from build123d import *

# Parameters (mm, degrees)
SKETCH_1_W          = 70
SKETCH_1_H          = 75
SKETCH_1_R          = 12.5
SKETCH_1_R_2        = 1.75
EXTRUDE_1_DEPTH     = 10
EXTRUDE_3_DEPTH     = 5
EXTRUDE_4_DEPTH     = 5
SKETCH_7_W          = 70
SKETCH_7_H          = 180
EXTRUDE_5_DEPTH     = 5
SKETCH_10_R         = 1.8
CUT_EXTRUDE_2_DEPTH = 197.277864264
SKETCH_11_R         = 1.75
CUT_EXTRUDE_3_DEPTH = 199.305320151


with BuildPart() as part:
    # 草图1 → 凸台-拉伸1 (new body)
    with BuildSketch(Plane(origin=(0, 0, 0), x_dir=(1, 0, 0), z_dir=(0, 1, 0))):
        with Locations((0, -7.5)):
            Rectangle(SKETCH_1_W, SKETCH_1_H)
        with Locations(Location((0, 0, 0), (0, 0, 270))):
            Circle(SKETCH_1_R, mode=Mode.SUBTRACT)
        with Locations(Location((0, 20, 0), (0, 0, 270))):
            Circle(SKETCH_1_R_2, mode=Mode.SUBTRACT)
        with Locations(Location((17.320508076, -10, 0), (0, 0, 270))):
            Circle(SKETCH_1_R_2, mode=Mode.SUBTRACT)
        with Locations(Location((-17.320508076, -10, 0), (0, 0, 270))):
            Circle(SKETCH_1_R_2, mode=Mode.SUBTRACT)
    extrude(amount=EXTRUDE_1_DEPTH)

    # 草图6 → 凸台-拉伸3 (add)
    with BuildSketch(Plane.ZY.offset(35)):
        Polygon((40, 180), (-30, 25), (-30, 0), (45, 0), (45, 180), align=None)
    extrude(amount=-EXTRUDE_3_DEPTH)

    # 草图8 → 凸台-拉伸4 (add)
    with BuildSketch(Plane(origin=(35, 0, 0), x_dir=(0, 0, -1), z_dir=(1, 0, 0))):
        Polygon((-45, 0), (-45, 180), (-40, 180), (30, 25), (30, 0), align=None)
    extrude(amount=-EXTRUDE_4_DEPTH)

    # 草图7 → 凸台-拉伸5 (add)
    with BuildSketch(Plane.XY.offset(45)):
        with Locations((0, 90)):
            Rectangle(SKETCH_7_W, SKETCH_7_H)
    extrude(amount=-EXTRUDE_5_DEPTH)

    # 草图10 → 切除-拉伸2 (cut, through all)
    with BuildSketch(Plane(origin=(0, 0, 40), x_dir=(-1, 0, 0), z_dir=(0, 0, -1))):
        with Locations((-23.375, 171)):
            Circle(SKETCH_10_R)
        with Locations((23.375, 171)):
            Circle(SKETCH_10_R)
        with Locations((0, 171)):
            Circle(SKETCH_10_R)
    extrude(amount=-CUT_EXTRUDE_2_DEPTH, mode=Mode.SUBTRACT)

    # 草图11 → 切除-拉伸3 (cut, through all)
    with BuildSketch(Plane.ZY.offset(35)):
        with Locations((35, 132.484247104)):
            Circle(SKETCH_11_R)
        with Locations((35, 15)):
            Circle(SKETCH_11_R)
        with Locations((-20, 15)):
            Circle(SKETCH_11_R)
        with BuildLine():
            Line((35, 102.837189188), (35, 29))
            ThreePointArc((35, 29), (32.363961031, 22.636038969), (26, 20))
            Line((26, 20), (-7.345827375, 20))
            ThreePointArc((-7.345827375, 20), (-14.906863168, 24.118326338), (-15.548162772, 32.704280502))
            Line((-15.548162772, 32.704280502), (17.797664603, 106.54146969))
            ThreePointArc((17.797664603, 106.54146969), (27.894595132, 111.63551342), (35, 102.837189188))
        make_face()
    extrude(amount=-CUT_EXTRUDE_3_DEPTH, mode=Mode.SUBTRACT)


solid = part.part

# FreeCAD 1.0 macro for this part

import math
import FreeCAD as App
import Part
import Sketcher

V = App.Vector


def add_polygon(sketch, points):
    """Adds a closed chain of lines whose ends are joined by coincident constraints."""
    first, n = sketch.GeometryCount, len(points)
    for a, b in zip(points, points[1:] + points[:1]):
        sketch.addGeometry(Part.LineSegment(App.Vector(*a, 0), App.Vector(*b, 0)), False)
    for i in range(n):
        sketch.addConstraint(Sketcher.Constraint("Coincident", first + i, 2, first + (i + 1) % n, 1))

doc = App.newDocument("Part")
params = doc.addObject("Spreadsheet::Sheet", "Params")
for row, (alias, value) in enumerate([
    ("sketch1_diameter", "25 mm"),
    ("sketch1_diameter2", "3.5 mm"),
    ("sketch1_width", "70 mm"),
    ("sketch1_height", "75 mm"),
    ("pad1_length", "10 mm"),
    ("sketch2_width", "25 mm"),
    ("sketch2_width2", "180 mm"),
    ("sketch2_height", "75 mm"),
    ("sketch2_height2", "5 mm"),
    ("pad2_length", "5 mm"),
    ("sketch3_width", "180 mm"),
    ("sketch3_width2", "25 mm"),
    ("sketch3_height", "75 mm"),
    ("sketch3_height2", "5 mm"),
    ("pad3_length", "5 mm"),
    ("sketch4_width", "70 mm"),
    ("sketch4_height", "180 mm"),
    ("pad4_length", "5 mm"),
    ("sketch5_diameter", "3.6 mm"),
    ("sketch6_radius", "9 mm"),
    ("sketch6_diameter", "3.5 mm"),
], start=1):
    params.set(f"A{row}", alias)
    params.set(f"B{row}", "=" + value)
    params.setAlias(f"B{row}", alias)

body = doc.addObject("PartDesign::Body", "Body")

sketch1 = body.newObject("Sketcher::SketchObject", "Sketch")
sketch1.AttachmentSupport = (doc.getObject("XZ_Plane"), [""])
sketch1.MapMode = "FlatFace"
add_polygon(sketch1, [(-35, -30), (-35, 45), (35, 45), (35, -30)])
sketch1.addGeometry(Part.Circle(V(-17.3, 10, 0), V(0, 0, 1), 1.8), False)
sketch1.addGeometry(Part.Circle(V(17.3, 10, 0), V(0, 0, 1), 1.8), False)
sketch1.addGeometry(Part.Circle(V(0, 0, 0), V(0, 0, 1), 12.5), False)
sketch1.addGeometry(Part.Circle(V(0, -20, 0), V(0, 0, 1), 1.8), False)
sketch1.addConstraint([
    Sketcher.Constraint("Vertical", 0),
    Sketcher.Constraint("Horizontal", 1),
    Sketcher.Constraint("Vertical", 2),
    Sketcher.Constraint("Horizontal", 3),
    Sketcher.Constraint("Coincident", 6, 3, -1, 1),
    Sketcher.Constraint("Equal", 4, 5),
    Sketcher.Constraint("Equal", 5, 7),
    Sketcher.Constraint("Symmetric", 4, 3, 5, 3, -2),
    Sketcher.Constraint("PointOnObject", 7, 3, -2),
    Sketcher.Constraint("Diameter", 6, 25.0),
    Sketcher.Constraint("Diameter", 4, 3.5),
    Sketcher.Constraint("DistanceX", 1, 1, 1, 2, 70.0),
    Sketcher.Constraint("DistanceY", 0, 1, 0, 2, 75.0),
    Sketcher.Constraint("DistanceY", -1, 1, 4, 3, 10.0),
    Sketcher.Constraint("DistanceY", 7, 3, -1, 1, 20.0),
    Sketcher.Constraint("DistanceX", 0, 2, -1, 1, 35.0),
    Sketcher.Constraint("DistanceY", -1, 1, 0, 2, 45.0),
    Sketcher.Constraint("DistanceX", 4, 3, -1, 1, 17.320508),
])
sketch1.setExpression("Constraints[13]", "Params.sketch1_diameter")
sketch1.setExpression("Constraints[14]", "Params.sketch1_diameter2")
sketch1.setExpression("Constraints[15]", "Params.sketch1_width")
sketch1.setExpression("Constraints[16]", "Params.sketch1_height")
pad1 = body.newObject("PartDesign::Pad", "Pad")
pad1.Profile = sketch1
pad1.setExpression("Length", "Params.pad1_length")
pad1.Reversed = True

sketch2 = body.newObject("Sketcher::SketchObject", "Sketch001")
sketch2.AttachmentSupport = (doc.getObject("YZ_Plane"), [""])
sketch2.MapMode = "FlatFace"
sketch2.AttachmentOffset = App.Placement(V(0, 0, -35), App.Rotation())
add_polygon(sketch2, [(180, 40), (25, -30), (0, -30), (0, 45), (180, 45)])
sketch2.addConstraint([
    Sketcher.Constraint("Horizontal", 1),
    Sketcher.Constraint("Vertical", 2),
    Sketcher.Constraint("Horizontal", 3),
    Sketcher.Constraint("Vertical", 4),
    Sketcher.Constraint("PointOnObject", 1, 2, -2),
    Sketcher.Constraint("DistanceX", 1, 2, 1, 1, 25.0),
    Sketcher.Constraint("DistanceX", 3, 1, 3, 2, 180.0),
    Sketcher.Constraint("DistanceY", 2, 1, 2, 2, 75.0),
    Sketcher.Constraint("DistanceY", 4, 2, 4, 1, 5.0),
    Sketcher.Constraint("DistanceY", 0, 2, -1, 1, 30.0),
])
sketch2.setExpression("Constraints[10]", "Params.sketch2_width")
sketch2.setExpression("Constraints[11]", "Params.sketch2_width2")
sketch2.setExpression("Constraints[12]", "Params.sketch2_height")
sketch2.setExpression("Constraints[13]", "Params.sketch2_height2")
pad2 = body.newObject("PartDesign::Pad", "Pad001")
pad2.Profile = sketch2
pad2.setExpression("Length", "Params.pad2_length")

sketch3 = body.newObject("Sketcher::SketchObject", "Sketch002")
sketch3.AttachmentSupport = (doc.getObject("YZ_Plane"), [""])
sketch3.MapMode = "FlatFace"
sketch3.AttachmentOffset = App.Placement(V(0, 0, 35), App.Rotation())
add_polygon(sketch3, [(180, 45), (0, 45), (0, -30), (25, -30), (180, 40)])
sketch3.addConstraint([
    Sketcher.Constraint("Horizontal", 0),
    Sketcher.Constraint("Vertical", 1),
    Sketcher.Constraint("Horizontal", 2),
    Sketcher.Constraint("Vertical", 4),
    Sketcher.Constraint("PointOnObject", 0, 2, -2),
    Sketcher.Constraint("DistanceX", 0, 2, 0, 1, 180.0),
    Sketcher.Constraint("DistanceX", 2, 1, 2, 2, 25.0),
    Sketcher.Constraint("DistanceY", 1, 2, 1, 1, 75.0),
    Sketcher.Constraint("DistanceY", 4, 1, 4, 2, 5.0),
    Sketcher.Constraint("DistanceY", -1, 1, 0, 2, 45.0),
])
sketch3.setExpression("Constraints[10]", "Params.sketch3_width")
sketch3.setExpression("Constraints[11]", "Params.sketch3_width2")
sketch3.setExpression("Constraints[12]", "Params.sketch3_height")
sketch3.setExpression("Constraints[13]", "Params.sketch3_height2")
pad3 = body.newObject("PartDesign::Pad", "Pad002")
pad3.Profile = sketch3
pad3.setExpression("Length", "Params.pad3_length")
pad3.Reversed = True

sketch4 = body.newObject("Sketcher::SketchObject", "Sketch003")
sketch4.AttachmentSupport = (doc.getObject("XY_Plane"), [""])
sketch4.MapMode = "FlatFace"
sketch4.AttachmentOffset = App.Placement(V(0, 0, 45), App.Rotation())
add_polygon(sketch4, [(-35, 180), (-35, 0), (35, 0), (35, 180)])
sketch4.addConstraint([
    Sketcher.Constraint("Vertical", 0),
    Sketcher.Constraint("Horizontal", 1),
    Sketcher.Constraint("Vertical", 2),
    Sketcher.Constraint("Horizontal", 3),
    Sketcher.Constraint("Symmetric", 0, 2, 1, 2, -1, 1),
    Sketcher.Constraint("DistanceX", 1, 1, 1, 2, 70.0),
    Sketcher.Constraint("DistanceY", 0, 2, 0, 1, 180.0),
])
sketch4.setExpression("Constraints[9]", "Params.sketch4_width")
sketch4.setExpression("Constraints[10]", "Params.sketch4_height")
pad4 = body.newObject("PartDesign::Pad", "Pad003")
pad4.Profile = sketch4
pad4.setExpression("Length", "Params.pad4_length")
pad4.Reversed = True

sketch5 = body.newObject("Sketcher::SketchObject", "Sketch004")
sketch5.AttachmentSupport = (doc.getObject("XY_Plane"), [""])
sketch5.MapMode = "FlatFace"
sketch5.AttachmentOffset = App.Placement(V(0, 0, 40), App.Rotation())
sketch5.addGeometry([
    Part.Circle(V(23.4, 171, 0), V(0, 0, 1), 1.8),
    Part.Circle(V(-23.4, 171, 0), V(0, 0, 1), 1.8),
    Part.Circle(V(0, 171, 0), V(0, 0, 1), 1.8),
], False)
sketch5.addConstraint([
    Sketcher.Constraint("Equal", 0, 1),
    Sketcher.Constraint("Equal", 1, 2),
    Sketcher.Constraint("Symmetric", 0, 3, 1, 3, -2),
    Sketcher.Constraint("PointOnObject", 2, 3, -2),
    Sketcher.Constraint("Horizontal", 1, 3, 2, 3),
    Sketcher.Constraint("Diameter", 0, 3.6),
    Sketcher.Constraint("DistanceY", -1, 1, 0, 3, 171.0),
    Sketcher.Constraint("DistanceX", 1, 3, 0, 3, 46.75),
])
sketch5.setExpression("Constraints[5]", "Params.sketch5_diameter")
pocket1 = body.newObject("PartDesign::Pocket", "Pocket")
pocket1.Profile = sketch5
pocket1.Type = "ThroughAll"
pocket1.Reversed = True

sketch6 = body.newObject("Sketcher::SketchObject", "Sketch005")
sketch6.AttachmentSupport = (doc.getObject("YZ_Plane"), [""])
sketch6.MapMode = "FlatFace"
sketch6.AttachmentOffset = App.Placement(V(0, 0, -35), App.Rotation())
sketch6.addGeometry([
    Part.Circle(V(132.5, 35, 0), V(0, 0, 1), 1.8),
    Part.Circle(V(15, 35, 0), V(0, 0, 1), 1.8),
    Part.Circle(V(15, -20, 0), V(0, 0, 1), 1.8),
    Part.LineSegment(V(29, 35, 0), V(102.8, 35, 0)),
    Part.ArcOfCircle(Part.Circle(V(102.8, 26, 0), V(0, 0, 1), 9), math.radians(-66), math.radians(90)),
    Part.LineSegment(V(106.5, 17.8, 0), V(32.7, -15.5, 0)),
    Part.ArcOfCircle(Part.Circle(V(29, -7.3, 0), V(0, 0, 1), 9), math.radians(180), math.radians(294)),
    Part.LineSegment(V(20, -7.3, 0), V(20, 26, 0)),
    Part.ArcOfCircle(Part.Circle(V(29, 26, 0), V(0, 0, 1), 9), math.radians(90), math.radians(180)),
], False)
sketch6.addConstraint([
    Sketcher.Constraint("Tangent", 3, 2, 4, 2),
    Sketcher.Constraint("Tangent", 4, 1, 5, 1),
    Sketcher.Constraint("Tangent", 5, 2, 6, 2),
    Sketcher.Constraint("Tangent", 6, 1, 7, 1),
    Sketcher.Constraint("Tangent", 7, 2, 8, 2),
    Sketcher.Constraint("Tangent", 8, 1, 3, 1),
    Sketcher.Constraint("Horizontal", 3),
    Sketcher.Constraint("Vertical", 7),
    Sketcher.Constraint("Equal", 0, 1),
    Sketcher.Constraint("Equal", 1, 2),
    Sketcher.Constraint("Equal", 4, 6),
    Sketcher.Constraint("Equal", 6, 8),
    Sketcher.Constraint("Horizontal", 0, 3, 1, 3),
    Sketcher.Constraint("Horizontal", 1, 3, 3, 2),
    Sketcher.Constraint("Vertical", 1, 3, 2, 3),
    Sketcher.Constraint("Radius", 4, 9.0),
    Sketcher.Constraint("Diameter", 0, 3.5),
    Sketcher.Constraint("DistanceY", -1, 1, 0, 3, 35.0),
    Sketcher.Constraint("DistanceX", -1, 1, 1, 3, 15.0),
    Sketcher.Constraint("DistanceY", 2, 3, -1, 1, 20.0),
    Sketcher.Constraint("DistanceX", -1, 1, 6, 3, 29.0),
    Sketcher.Constraint("DistanceX", 3, 1, 3, 2, 73.837189),
    Sketcher.Constraint("DistanceY", 7, 1, 7, 2, 33.345827),
    Sketcher.Constraint("DistanceX", -1, 1, 0, 3, 132.484247),
])
sketch6.setExpression("Constraints[15]", "Params.sketch6_radius")
sketch6.setExpression("Constraints[16]", "Params.sketch6_diameter")
pocket2 = body.newObject("PartDesign::Pocket", "Pocket001")
pocket2.Profile = sketch6
pocket2.Type = "ThroughAll"
pocket2.Reversed = True

doc.recompute()
